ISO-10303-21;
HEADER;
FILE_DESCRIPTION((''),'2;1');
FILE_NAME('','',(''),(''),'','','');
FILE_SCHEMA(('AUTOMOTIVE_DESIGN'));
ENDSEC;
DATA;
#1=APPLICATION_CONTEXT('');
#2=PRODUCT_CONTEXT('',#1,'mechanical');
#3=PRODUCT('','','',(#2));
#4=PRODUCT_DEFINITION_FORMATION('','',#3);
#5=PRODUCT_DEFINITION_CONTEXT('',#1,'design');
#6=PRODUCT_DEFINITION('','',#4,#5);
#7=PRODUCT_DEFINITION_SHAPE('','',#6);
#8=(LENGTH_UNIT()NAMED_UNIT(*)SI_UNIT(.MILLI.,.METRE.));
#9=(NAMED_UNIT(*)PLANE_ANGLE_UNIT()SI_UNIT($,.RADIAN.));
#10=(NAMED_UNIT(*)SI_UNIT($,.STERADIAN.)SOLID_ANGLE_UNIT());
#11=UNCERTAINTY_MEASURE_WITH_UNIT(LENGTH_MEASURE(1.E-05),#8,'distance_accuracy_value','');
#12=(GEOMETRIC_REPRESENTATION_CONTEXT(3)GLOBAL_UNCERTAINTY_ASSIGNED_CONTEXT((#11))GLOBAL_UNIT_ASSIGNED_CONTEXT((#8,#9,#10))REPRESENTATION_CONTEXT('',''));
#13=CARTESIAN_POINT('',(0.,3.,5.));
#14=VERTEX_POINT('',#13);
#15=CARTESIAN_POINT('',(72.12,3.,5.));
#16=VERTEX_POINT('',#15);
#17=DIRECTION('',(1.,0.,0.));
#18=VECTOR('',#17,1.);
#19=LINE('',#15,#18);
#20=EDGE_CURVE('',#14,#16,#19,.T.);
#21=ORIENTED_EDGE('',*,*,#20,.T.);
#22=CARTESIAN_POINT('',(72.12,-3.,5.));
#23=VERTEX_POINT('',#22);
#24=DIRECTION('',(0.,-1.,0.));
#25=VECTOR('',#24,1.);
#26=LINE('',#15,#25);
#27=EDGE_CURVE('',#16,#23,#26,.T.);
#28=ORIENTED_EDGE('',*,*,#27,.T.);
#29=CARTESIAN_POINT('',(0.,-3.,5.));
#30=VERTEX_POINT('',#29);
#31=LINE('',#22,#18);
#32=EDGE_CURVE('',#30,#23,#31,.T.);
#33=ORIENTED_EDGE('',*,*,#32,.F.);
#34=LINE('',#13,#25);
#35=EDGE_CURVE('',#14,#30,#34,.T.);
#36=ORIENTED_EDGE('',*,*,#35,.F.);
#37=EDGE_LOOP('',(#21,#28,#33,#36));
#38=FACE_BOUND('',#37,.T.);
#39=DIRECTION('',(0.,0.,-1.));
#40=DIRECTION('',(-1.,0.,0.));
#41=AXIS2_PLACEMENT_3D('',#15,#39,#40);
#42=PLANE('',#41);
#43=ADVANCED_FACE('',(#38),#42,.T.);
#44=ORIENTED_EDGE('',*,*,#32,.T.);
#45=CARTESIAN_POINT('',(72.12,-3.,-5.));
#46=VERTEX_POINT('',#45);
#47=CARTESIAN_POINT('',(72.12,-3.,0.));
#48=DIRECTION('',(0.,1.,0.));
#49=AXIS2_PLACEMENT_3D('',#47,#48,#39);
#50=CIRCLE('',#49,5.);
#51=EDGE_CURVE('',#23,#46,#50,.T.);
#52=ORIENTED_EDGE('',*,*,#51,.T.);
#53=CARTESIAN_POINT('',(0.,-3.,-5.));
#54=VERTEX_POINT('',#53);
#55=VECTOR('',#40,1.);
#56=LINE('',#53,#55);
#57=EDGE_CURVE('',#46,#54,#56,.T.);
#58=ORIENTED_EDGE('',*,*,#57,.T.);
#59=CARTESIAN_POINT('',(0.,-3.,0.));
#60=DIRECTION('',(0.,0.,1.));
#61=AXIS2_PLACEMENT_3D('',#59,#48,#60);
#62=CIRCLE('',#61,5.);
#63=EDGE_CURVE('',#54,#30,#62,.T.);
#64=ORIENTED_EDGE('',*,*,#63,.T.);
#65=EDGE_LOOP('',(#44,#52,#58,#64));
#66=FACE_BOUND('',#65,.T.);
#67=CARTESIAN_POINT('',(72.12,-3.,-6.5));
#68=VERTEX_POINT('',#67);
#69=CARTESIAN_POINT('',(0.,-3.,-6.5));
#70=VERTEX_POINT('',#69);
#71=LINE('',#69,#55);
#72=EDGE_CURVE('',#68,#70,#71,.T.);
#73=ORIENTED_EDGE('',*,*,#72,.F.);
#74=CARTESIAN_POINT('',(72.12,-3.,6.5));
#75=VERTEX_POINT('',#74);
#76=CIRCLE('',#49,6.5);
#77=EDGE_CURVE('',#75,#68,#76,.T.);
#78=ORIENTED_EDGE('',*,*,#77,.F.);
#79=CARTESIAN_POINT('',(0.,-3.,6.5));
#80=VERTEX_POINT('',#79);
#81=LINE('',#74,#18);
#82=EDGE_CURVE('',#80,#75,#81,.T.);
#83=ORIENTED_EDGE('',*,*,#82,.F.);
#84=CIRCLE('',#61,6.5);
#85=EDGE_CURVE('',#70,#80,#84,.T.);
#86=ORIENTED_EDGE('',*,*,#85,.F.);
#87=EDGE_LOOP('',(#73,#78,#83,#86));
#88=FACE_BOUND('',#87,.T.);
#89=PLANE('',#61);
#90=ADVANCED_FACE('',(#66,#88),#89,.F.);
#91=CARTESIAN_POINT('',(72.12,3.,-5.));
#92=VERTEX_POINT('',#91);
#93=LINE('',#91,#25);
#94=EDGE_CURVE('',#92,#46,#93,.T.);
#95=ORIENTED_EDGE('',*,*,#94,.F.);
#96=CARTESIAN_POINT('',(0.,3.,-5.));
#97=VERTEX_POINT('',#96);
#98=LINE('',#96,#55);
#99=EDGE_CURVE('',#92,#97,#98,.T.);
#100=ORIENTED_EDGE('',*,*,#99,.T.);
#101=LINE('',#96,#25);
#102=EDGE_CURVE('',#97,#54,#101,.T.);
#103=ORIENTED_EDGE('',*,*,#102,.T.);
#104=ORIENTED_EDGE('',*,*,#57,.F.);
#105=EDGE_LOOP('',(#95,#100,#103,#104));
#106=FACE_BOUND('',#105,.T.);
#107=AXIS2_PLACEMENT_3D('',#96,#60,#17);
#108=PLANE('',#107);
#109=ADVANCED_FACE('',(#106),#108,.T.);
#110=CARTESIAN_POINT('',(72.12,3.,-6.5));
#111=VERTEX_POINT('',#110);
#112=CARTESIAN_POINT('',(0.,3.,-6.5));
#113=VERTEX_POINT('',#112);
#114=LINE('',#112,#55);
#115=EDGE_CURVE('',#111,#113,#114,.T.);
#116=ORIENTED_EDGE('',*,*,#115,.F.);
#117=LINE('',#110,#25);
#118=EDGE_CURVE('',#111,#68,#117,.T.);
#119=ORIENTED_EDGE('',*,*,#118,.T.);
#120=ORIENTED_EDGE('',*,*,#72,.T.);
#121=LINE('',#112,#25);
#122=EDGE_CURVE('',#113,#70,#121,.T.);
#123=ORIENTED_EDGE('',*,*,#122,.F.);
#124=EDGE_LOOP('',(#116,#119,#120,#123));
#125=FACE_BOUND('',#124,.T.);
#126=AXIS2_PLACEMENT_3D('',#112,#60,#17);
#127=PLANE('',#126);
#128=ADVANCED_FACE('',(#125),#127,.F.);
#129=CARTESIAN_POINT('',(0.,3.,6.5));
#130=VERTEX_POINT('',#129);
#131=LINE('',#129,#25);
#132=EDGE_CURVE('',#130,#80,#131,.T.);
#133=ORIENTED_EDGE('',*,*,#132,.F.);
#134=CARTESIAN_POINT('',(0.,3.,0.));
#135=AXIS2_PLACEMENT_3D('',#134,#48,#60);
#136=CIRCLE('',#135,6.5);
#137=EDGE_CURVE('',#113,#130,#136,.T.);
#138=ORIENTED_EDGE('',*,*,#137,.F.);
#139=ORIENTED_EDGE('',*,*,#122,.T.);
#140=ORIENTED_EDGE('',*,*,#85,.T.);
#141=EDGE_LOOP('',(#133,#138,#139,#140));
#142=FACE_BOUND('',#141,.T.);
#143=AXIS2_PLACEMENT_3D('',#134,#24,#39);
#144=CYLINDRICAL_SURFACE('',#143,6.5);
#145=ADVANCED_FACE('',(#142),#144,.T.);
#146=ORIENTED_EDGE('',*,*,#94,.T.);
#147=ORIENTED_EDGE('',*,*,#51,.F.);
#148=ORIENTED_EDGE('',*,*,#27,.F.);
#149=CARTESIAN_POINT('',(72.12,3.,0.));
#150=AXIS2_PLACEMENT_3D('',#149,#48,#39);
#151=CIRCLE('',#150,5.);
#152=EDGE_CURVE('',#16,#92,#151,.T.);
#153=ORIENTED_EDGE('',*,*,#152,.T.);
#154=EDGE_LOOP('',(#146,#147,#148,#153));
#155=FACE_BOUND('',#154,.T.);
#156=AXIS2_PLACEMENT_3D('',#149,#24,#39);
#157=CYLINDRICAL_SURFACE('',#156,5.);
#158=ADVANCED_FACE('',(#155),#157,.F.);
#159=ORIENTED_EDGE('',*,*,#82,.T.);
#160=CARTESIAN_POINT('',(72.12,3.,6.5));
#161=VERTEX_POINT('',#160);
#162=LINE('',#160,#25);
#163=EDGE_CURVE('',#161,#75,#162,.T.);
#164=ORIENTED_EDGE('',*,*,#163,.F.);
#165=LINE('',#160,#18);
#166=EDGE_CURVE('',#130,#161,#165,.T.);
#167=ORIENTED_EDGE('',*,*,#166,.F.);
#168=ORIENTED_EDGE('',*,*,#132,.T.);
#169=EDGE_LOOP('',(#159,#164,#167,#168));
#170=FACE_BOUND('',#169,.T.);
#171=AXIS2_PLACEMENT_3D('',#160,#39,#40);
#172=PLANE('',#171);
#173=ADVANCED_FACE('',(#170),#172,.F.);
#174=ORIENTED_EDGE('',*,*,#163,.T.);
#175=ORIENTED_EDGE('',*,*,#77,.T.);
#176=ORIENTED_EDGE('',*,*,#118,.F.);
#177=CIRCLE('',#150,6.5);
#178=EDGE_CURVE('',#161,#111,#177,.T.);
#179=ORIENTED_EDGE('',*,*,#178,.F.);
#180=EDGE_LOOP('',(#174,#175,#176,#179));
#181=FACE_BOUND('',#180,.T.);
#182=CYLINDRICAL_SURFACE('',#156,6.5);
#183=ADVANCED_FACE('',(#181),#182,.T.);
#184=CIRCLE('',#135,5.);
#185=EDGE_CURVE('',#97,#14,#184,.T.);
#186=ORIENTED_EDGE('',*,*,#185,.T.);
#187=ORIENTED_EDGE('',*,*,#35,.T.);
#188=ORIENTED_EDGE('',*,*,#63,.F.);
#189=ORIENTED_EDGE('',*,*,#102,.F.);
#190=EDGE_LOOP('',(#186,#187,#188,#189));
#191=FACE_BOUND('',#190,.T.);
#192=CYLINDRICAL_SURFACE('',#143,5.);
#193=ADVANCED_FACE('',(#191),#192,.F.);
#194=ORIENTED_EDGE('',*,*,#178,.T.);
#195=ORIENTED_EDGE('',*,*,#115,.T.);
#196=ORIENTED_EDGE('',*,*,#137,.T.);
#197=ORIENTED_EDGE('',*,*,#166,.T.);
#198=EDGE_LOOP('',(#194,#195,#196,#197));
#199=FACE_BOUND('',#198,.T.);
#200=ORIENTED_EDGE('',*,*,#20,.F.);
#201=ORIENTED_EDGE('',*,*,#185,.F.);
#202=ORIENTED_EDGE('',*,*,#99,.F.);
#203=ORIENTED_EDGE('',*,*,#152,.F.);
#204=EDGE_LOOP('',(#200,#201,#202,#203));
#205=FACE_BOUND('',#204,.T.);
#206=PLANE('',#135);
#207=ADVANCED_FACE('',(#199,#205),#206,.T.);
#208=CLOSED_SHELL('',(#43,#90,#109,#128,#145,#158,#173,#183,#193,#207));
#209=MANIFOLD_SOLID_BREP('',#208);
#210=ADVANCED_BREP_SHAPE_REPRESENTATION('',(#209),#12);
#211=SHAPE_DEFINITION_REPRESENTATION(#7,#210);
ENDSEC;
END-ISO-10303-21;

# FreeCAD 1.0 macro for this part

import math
import FreeCAD as App
import Part
import Sketcher
from FreeCAD import Vector

doc = App.newDocument("Part")
body = doc.addObject("PartDesign::Body", "Body")

# Sketch on XZ plane
sketch1 = body.newObject("Sketcher::SketchObject", "Sketch")
sketch1.AttachmentSupport = (doc.getObject("XZ_Plane"), [""])
sketch1.MapMode = "FlatFace"
sketch1.addGeometry(Part.LineSegment(Vector(72.12, -6.5, 0), Vector(0, -6.5, 0)), False)
sketch1.addGeometry(Part.ArcOfCircle(Part.Circle(Vector(0, 0, 0), Vector(0, 0, 1), 6.5), math.radians(90), math.radians(270)), False)
sketch1.addGeometry(Part.LineSegment(Vector(0, 6.5, 0), Vector(72.12, 6.5, 0)), False)
sketch1.addGeometry(Part.ArcOfCircle(Part.Circle(Vector(72.12, 0, 0), Vector(0, 0, 1), 6.5), math.radians(-90), math.radians(90)), False)
sketch1.addGeometry(Part.LineSegment(Vector(0, -5, 0), Vector(72.12, -5, 0)), False)
sketch1.addGeometry(Part.ArcOfCircle(Part.Circle(Vector(72.12, 0, 0), Vector(0, 0, 1), 5), math.radians(-90), math.radians(90)), False)
sketch1.addGeometry(Part.LineSegment(Vector(72.12, 5, 0), Vector(0, 5, 0)), False)
sketch1.addGeometry(Part.ArcOfCircle(Part.Circle(Vector(0, 0, 0), Vector(0, 0, 1), 5), math.radians(90), math.radians(270)), False)
sketch1.addConstraint(Sketcher.Constraint("Tangent", 0, 2, 1, 2))
sketch1.addConstraint(Sketcher.Constraint("Tangent", 1, 1, 2, 1))
sketch1.addConstraint(Sketcher.Constraint("Tangent", 2, 2, 3, 2))
sketch1.addConstraint(Sketcher.Constraint("Tangent", 3, 1, 0, 1))
sketch1.addConstraint(Sketcher.Constraint("Tangent", 4, 2, 5, 1))
sketch1.addConstraint(Sketcher.Constraint("Tangent", 5, 2, 6, 1))
sketch1.addConstraint(Sketcher.Constraint("Tangent", 6, 2, 7, 1))
sketch1.addConstraint(Sketcher.Constraint("Tangent", 7, 2, 4, 1))
sketch1.addConstraint(Sketcher.Constraint("Horizontal", 0))
sketch1.addConstraint(Sketcher.Constraint("Horizontal", 2))
sketch1.addConstraint(Sketcher.Constraint("Horizontal", 4))
sketch1.addConstraint(Sketcher.Constraint("Horizontal", 6))
sketch1.addConstraint(Sketcher.Constraint("Coincident", 1, 3, -1, 1))
sketch1.addConstraint(Sketcher.Constraint("Coincident", 7, 3, -1, 1))
sketch1.addConstraint(Sketcher.Constraint("Vertical", 5, 3, 2, 2))
sketch1.addConstraint(Sketcher.Constraint("Radius", 5, 5.0))
sketch1.addConstraint(Sketcher.Constraint("Radius", 1, 6.5))
sketch1.addConstraint(Sketcher.Constraint("DistanceX", 0, 2, 0, 1, 72.12))
pad1 = body.newObject("PartDesign::Pad", "Pad")
pad1.Profile = sketch1
pad1.Length = 6
pad1.Midplane = True

doc.recompute()
